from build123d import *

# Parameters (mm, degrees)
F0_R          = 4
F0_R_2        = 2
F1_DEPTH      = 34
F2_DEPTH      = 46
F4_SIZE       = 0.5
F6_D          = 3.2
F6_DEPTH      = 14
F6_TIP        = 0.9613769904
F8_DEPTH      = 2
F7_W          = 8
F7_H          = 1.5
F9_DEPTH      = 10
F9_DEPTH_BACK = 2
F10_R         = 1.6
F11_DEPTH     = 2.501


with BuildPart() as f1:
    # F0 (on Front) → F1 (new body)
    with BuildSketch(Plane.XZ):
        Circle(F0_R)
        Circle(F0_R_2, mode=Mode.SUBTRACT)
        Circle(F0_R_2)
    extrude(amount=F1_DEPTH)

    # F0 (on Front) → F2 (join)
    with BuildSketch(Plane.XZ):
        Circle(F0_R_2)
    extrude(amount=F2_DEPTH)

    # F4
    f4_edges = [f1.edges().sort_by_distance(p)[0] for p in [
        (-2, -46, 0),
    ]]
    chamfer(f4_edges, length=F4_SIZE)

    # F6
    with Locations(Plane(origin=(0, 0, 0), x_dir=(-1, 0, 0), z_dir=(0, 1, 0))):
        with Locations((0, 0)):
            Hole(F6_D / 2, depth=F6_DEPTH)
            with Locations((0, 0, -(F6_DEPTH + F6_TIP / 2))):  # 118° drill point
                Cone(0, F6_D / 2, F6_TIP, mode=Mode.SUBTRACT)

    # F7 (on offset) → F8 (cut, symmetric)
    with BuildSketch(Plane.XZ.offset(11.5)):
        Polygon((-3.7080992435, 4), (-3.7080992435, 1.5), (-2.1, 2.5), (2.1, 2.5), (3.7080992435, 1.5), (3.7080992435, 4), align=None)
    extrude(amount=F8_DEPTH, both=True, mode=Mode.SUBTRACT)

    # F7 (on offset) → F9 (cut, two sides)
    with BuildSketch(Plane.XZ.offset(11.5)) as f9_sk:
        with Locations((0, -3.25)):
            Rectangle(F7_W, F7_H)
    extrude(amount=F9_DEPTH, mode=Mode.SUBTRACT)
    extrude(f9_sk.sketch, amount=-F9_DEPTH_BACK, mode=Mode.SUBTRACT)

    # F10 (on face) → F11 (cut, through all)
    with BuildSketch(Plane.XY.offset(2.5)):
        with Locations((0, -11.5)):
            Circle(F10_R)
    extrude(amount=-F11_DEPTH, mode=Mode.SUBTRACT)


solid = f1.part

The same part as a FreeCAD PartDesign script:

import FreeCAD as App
import Part
import Sketcher

V = App.Vector
Q = App.Units.Quantity


def edges_at(feature, points):
    """Names of the edges that pass closest to the given points."""
    edges = feature.Shape.Edges
    near = lambda p: min(range(len(edges)), key=lambda i: edges[i].distToShape(Part.Vertex(*p))[0])
    return sorted({f"Edge{near(p) + 1}" for p in points})

doc = App.newDocument("Part")
body = doc.addObject("PartDesign::Body", "Body")

# Sketch on XZ plane
sketch1 = body.newObject("Sketcher::SketchObject", "Sketch")
sketch1.AttachmentSupport = (doc.getObject("XZ_Plane"), [""])
sketch1.MapMode = "FlatFace"
sketch1.addGeometry(Part.Circle(V(0, 0, 0), V(0, 0, 1), 4), False)
sketch1.addConstraint([
    Sketcher.Constraint("Coincident", 0, 3, -1, 1),
    Sketcher.Constraint("Diameter", 0, Q("8 mm")),
])
pad1 = body.newObject("PartDesign::Pad", "Pad")
pad1.Profile = sketch1
pad1.Length = 34

# Sketch on XZ plane
sketch2 = body.newObject("Sketcher::SketchObject", "Sketch001")
sketch2.AttachmentSupport = (doc.getObject("XZ_Plane"), [""])
sketch2.MapMode = "FlatFace"
sketch2.addGeometry(Part.Circle(V(0, 0, 0), V(0, 0, 1), 2), False)
sketch2.addConstraint([
    Sketcher.Constraint("Coincident", 0, 3, -1, 1),
    Sketcher.Constraint("Diameter", 0, Q("4 mm")),
])
pad2 = body.newObject("PartDesign::Pad", "Pad001")
pad2.Profile = sketch2
pad2.Length = 46
doc.recompute()

chamfer = body.newObject("PartDesign::Chamfer", "Chamfer")
chamfer.Base = (pad2, edges_at(pad2, [(-2, -46, 0)]))
chamfer.Size = 0.5

# Sketch on XZ plane
sketch3 = body.newObject("Sketcher::SketchObject", "Sketch002")
sketch3.AttachmentSupport = (doc.getObject("XZ_Plane"), [""])
sketch3.MapMode = "FlatFace"
sketch3.addGeometry(Part.Circle(V(0, 0, 0), V(0, 0, 1), 1.6), False)
sketch3.addConstraint([
    Sketcher.Constraint("Coincident", 0, 3, -1, 1),
    Sketcher.Constraint("Diameter", 0, Q("3.2 mm")),
])
doc.recompute()
hole = body.newObject("PartDesign::Hole", "Hole")
hole.Profile = sketch3
hole.ThreadType = "None"
hole.Diameter = 3.2
hole.DepthType = "Dimension"
hole.Depth = 14
hole.DrillPoint = "Angled"
hole.DrillPointAngle = 118
hole.Reversed = True

# Sketch on XZ plane
sketch4 = body.newObject("Sketcher::SketchObject", "Sketch003")
sketch4.AttachmentSupport = (doc.getObject("XZ_Plane"), [""])
sketch4.MapMode = "FlatFace"
sketch4.AttachmentOffset = App.Placement(V(0, 0, 11.5), App.Rotation())
sketch4.addGeometry([
    Part.LineSegment(V(-3.708099, 4, 0), V(-3.708099, 1.5, 0)),  # 0
    Part.LineSegment(V(-3.708099, 1.5, 0), V(-2.1, 2.5, 0)),  # 1
    Part.LineSegment(V(-2.1, 2.5, 0), V(2.1, 2.5, 0)),  # 2
    Part.LineSegment(V(2.1, 2.5, 0), V(3.708099, 1.5, 0)),  # 3
    Part.LineSegment(V(3.708099, 1.5, 0), V(3.708099, 4, 0)),  # 4
    Part.LineSegment(V(3.708099, 4, 0), V(-3.708099, 4, 0)),  # 5
], False)
sketch4.addConstraint([
    Sketcher.Constraint("Coincident", 0, 2, 1, 1),
    Sketcher.Constraint("Coincident", 1, 2, 2, 1),
    Sketcher.Constraint("Coincident", 2, 2, 3, 1),
    Sketcher.Constraint("Coincident", 3, 2, 4, 1),
    Sketcher.Constraint("Coincident", 4, 2, 5, 1),
    Sketcher.Constraint("Coincident", 5, 2, 0, 1),
    Sketcher.Constraint("Vertical", 0),
    Sketcher.Constraint("Horizontal", 2),
    Sketcher.Constraint("Vertical", 4),
    Sketcher.Constraint("Horizontal", 5),
    Sketcher.Constraint("Symmetric", 0, 2, 3, 2, -2),
    Sketcher.Constraint("Equal", 1, 3),
    Sketcher.Constraint("DistanceX", 2, 1, 2, 2, Q("4.2 mm")),
    Sketcher.Constraint("DistanceY", 0, 2, 0, 1, Q("2.5 mm")),
    Sketcher.Constraint("DistanceY", -1, 1, 4, 2, Q("4 mm")),
    Sketcher.Constraint("DistanceY", 0, 2, 1, 2, Q("1 mm")),
    Sketcher.Constraint("DistanceX", 5, 2, 5, 1, Q("7.416198 mm")),
])
pocket1 = body.newObject("PartDesign::Pocket", "Pocket")
pocket1.Profile = sketch4
pocket1.Length = 4
pocket1.Midplane = True

# Sketch on XZ plane
sketch5 = body.newObject("Sketcher::SketchObject", "Sketch004")
sketch5.AttachmentSupport = (doc.getObject("XZ_Plane"), [""])
sketch5.MapMode = "FlatFace"
sketch5.AttachmentOffset = App.Placement(V(0, 0, 11.5), App.Rotation())
sketch5.addGeometry([
    Part.LineSegment(V(-4, -2.5, 0), V(-4, -4, 0)),
    Part.LineSegment(V(-4, -4, 0), V(4, -4, 0)),
    Part.LineSegment(V(4, -4, 0), V(4, -2.5, 0)),
    Part.LineSegment(V(4, -2.5, 0), V(-4, -2.5, 0)),
], False)
sketch5.addConstraint([
    Sketcher.Constraint("Coincident", 0, 2, 1, 1),
    Sketcher.Constraint("Coincident", 1, 2, 2, 1),
    Sketcher.Constraint("Coincident", 2, 2, 3, 1),
    Sketcher.Constraint("Coincident", 3, 2, 0, 1),
    Sketcher.Constraint("Vertical", 0),
    Sketcher.Constraint("Horizontal", 1),
    Sketcher.Constraint("Vertical", 2),
    Sketcher.Constraint("Horizontal", 3),
    Sketcher.Constraint("DistanceX", 1, 1, 1, 2, Q("8 mm")),
    Sketcher.Constraint("DistanceY", 0, 2, 0, 1, Q("1.5 mm")),
    Sketcher.Constraint("DistanceX", 0, 2, -1, 1, Q("4 mm")),
    Sketcher.Constraint("DistanceY", 0, 2, -1, 1, Q("4 mm")),
])
pocket2 = body.newObject("PartDesign::Pocket", "Pocket001")
pocket2.Profile = sketch5
pocket2.Type = "TwoLengths"
pocket2.Length = 10
pocket2.Length2 = 2
pocket2.Reversed = True

# Sketch on XY plane
sketch6 = body.newObject("Sketcher::SketchObject", "Sketch005")
sketch6.AttachmentSupport = (doc.getObject("XY_Plane"), [""])
sketch6.MapMode = "FlatFace"
sketch6.AttachmentOffset = App.Placement(V(0, 0, 2.5), App.Rotation())
sketch6.addGeometry(Part.Circle(V(0, -11.5, 0), V(0, 0, 1), 1.6), False)
sketch6.addConstraint([
    Sketcher.Constraint("PointOnObject", 0, 3, -2),
    Sketcher.Constraint("Diameter", 0, Q("3.2 mm")),
    Sketcher.Constraint("DistanceY", 0, 3, -1, 1, Q("11.5 mm")),
])
pocket3 = body.newObject("PartDesign::Pocket", "Pocket002")
pocket3.Profile = sketch6
pocket3.Length = 2.501

doc.recompute()
